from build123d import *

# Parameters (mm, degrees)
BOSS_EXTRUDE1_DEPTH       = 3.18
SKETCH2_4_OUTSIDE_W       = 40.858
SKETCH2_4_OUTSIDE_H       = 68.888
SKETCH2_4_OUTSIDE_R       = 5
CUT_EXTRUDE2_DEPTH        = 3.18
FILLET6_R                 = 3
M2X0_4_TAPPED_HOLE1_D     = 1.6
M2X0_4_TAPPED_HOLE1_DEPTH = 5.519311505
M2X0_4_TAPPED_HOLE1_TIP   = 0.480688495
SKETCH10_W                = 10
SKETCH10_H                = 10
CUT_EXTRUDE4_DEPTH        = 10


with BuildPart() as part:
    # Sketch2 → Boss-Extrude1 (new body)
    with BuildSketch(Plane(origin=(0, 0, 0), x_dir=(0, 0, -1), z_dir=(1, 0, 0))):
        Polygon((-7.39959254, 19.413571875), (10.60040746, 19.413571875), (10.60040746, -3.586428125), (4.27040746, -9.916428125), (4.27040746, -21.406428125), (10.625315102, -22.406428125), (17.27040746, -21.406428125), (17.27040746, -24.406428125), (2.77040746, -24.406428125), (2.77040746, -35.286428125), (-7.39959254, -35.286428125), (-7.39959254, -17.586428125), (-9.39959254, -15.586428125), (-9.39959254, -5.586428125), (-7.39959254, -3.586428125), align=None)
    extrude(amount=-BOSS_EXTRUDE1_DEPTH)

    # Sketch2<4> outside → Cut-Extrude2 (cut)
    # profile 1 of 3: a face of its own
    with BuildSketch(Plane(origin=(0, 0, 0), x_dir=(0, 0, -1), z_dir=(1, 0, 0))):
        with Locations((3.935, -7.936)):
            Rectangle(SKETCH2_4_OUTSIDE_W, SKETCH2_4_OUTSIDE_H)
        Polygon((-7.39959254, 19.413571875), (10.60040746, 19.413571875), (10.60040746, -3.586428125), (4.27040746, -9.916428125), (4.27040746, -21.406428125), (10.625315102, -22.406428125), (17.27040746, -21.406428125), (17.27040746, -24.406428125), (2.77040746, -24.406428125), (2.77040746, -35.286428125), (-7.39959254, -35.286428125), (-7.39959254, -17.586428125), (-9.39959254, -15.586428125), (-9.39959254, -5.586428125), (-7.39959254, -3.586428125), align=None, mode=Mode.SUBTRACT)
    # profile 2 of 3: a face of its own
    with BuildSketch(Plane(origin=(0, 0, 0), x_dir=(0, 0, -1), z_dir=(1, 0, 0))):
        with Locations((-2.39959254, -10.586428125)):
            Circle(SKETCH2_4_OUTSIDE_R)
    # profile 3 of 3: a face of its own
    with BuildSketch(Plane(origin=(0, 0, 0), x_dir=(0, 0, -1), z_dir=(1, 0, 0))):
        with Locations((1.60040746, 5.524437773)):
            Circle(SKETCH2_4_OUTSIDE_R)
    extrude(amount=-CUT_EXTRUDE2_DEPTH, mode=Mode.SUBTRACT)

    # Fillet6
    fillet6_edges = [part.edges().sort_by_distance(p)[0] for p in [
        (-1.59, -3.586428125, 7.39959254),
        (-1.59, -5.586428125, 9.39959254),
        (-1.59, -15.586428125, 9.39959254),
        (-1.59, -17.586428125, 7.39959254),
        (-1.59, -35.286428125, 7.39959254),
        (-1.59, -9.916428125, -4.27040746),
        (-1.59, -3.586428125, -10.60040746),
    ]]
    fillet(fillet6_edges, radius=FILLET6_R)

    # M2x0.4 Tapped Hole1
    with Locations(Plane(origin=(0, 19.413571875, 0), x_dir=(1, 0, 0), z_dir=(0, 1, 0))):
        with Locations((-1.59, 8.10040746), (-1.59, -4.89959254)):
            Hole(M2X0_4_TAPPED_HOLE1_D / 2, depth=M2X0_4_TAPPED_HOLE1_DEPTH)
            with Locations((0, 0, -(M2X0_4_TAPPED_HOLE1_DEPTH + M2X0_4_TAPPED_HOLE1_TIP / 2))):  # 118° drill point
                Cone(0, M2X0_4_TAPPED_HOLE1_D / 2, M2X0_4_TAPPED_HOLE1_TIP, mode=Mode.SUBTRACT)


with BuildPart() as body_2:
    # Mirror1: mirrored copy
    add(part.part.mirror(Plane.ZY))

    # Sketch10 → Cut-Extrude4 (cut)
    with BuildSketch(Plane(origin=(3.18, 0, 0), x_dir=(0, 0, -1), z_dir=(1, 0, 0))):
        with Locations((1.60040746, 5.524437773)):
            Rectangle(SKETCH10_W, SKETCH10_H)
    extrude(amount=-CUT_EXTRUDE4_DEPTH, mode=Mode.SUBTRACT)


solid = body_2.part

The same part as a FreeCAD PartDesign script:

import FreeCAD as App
import Part
import Sketcher


def edges_at(feature, points):
    """Names of the edges that pass closest to the given points."""
    edges = feature.Shape.Edges
    near = lambda p: min(range(len(edges)), key=lambda i: edges[i].distToShape(Part.Vertex(*p))[0])
    return sorted({f"Edge{near(p) + 1}" for p in points})


def add_polygon(sketch, points):
    """Adds a closed chain of lines whose ends are joined by coincident constraints."""
    first, n = sketch.GeometryCount, len(points)
    for a, b in zip(points, points[1:] + points[:1]):
        sketch.addGeometry(Part.LineSegment(App.Vector(*a, 0), App.Vector(*b, 0)), False)
    for i in range(n):
        sketch.addConstraint(Sketcher.Constraint("Coincident", first + i, 2, first + (i + 1) % n, 1))

doc = App.newDocument("Part")
body = doc.addObject("PartDesign::Body", "Body")

# Sketch on YZ plane
sketch1 = doc.addObject("Sketcher::SketchObject", "Sketch")
body.addObject(sketch1)
sketch1.AttachmentSupport = (doc.YZ_Plane, [""])
sketch1.MapMode = "FlatFace"
add_polygon(sketch1, [(19.4, -10.6), (19.4, 7.4), (-3.6, 7.4), (-5.6, 9.4), (-15.6, 9.4), (-17.6, 7.4), (-35.3, 7.4), (-35.3, -2.8), (-24.4, -2.8), (-24.4, -17.3), (-21.4, -17.3), (-22.4, -10.6), (-21.4, -4.3), (-9.9, -4.3), (-3.6, -10.6)])  # lines 0-14
sketch1.addConstraint(Sketcher.Constraint("Vertical", 0))
sketch1.addConstraint(Sketcher.Constraint("Horizontal", 1))
sketch1.addConstraint(Sketcher.Constraint("Horizontal", 3))
sketch1.addConstraint(Sketcher.Constraint("Horizontal", 5))
sketch1.addConstraint(Sketcher.Constraint("Vertical", 6))
sketch1.addConstraint(Sketcher.Constraint("Horizontal", 7))
sketch1.addConstraint(Sketcher.Constraint("Vertical", 8))
sketch1.addConstraint(Sketcher.Constraint("Horizontal", 9))
sketch1.addConstraint(Sketcher.Constraint("Horizontal", 12))
sketch1.addConstraint(Sketcher.Constraint("Horizontal", 14))
sketch1.addConstraint(Sketcher.Constraint("Perpendicular", 2, 4))
sketch1.addConstraint(Sketcher.Constraint("Perpendicular", 4, 13))
sketch1.addConstraint(Sketcher.Constraint("Horizontal", 1, 2, 4, 2))
sketch1.addConstraint(Sketcher.Constraint("Vertical", 9, 2, 11, 2))
sketch1.addConstraint(Sketcher.Constraint("Vertical", 1, 2, 13, 2))
sketch1.addConstraint(Sketcher.Constraint("Equal", 2, 4))
sketch1.addConstraint(Sketcher.Constraint("DistanceX", 1, 2, 1, 1, 23.0))
sketch1.addConstraint(Sketcher.Constraint("DistanceX", 3, 2, 3, 1, 10.0))
sketch1.addConstraint(Sketcher.Constraint("DistanceX", 9, 1, 9, 2, 3.0))
sketch1.addConstraint(Sketcher.Constraint("DistanceY", 0, 1, 0, 2, 18.0))
sketch1.addConstraint(Sketcher.Constraint("DistanceX", 5, 2, 5, 1, 17.7))
sketch1.addConstraint(Sketcher.Constraint("DistanceY", 8, 2, 8, 1, 14.5))
sketch1.addConstraint(Sketcher.Constraint("DistanceX", 2, 2, 1, 2, 2.0))
sketch1.addConstraint(Sketcher.Constraint("DistanceX", 10, 2, 9, 2, 1.0))
sketch1.addConstraint(Sketcher.Constraint("DistanceY", 9, 2, 11, 2, 13.0))
sketch1.addConstraint(Sketcher.Constraint("DistanceX", 7, 1, 7, 2, 10.88))
sketch1.addConstraint(Sketcher.Constraint("DistanceX", 12, 1, 12, 2, 11.49))
sketch1.addConstraint(Sketcher.Constraint("DistanceX", -1, 1, 0, 2, 19.413572))
sketch1.addConstraint(Sketcher.Constraint("Distance", 10, 6.719915))
sketch1.addConstraint(Sketcher.Constraint("DistanceY", -1, 1, 0, 2, 7.399593))
pad1 = doc.addObject("PartDesign::Pad", "Pad")
body.addObject(pad1)
pad1.Profile = sketch1
pad1.Length = 3.18
pad1.Reversed = True

# Sketch on YZ plane
sketch2 = doc.addObject("Sketcher::SketchObject", "Sketch001")
body.addObject(sketch2)
sketch2.AttachmentSupport = (doc.YZ_Plane, [""])
sketch2.MapMode = "FlatFace"
add_polygon(sketch2, [(26.5, 16.5), (-42.4, 16.5), (-42.4, -24.4), (26.5, -24.4)])  # lines 0-3
add_polygon(sketch2, [(-3.6, 7.4), (19.4, 7.4), (19.4, -10.6), (-3.6, -10.6), (-9.9, -4.3), (-21.4, -4.3), (-22.4, -10.6), (-21.4, -17.3), (-24.4, -17.3), (-24.4, -2.8), (-35.3, -2.8), (-35.3, 7.4), (-17.6, 7.4), (-15.6, 9.4), (-5.6, 9.4)])  # lines 4-18
sketch2.addGeometry(Part.Circle(App.Vector(-10.6, 2.4, 0), App.Vector(0, 0, 1), 5), False)  # 19
sketch2.addGeometry(Part.Circle(App.Vector(5.5, -1.6, 0), App.Vector(0, 0, 1), 5), False)  # 20
sketch2.addConstraint(Sketcher.Constraint("Horizontal", 0))
sketch2.addConstraint(Sketcher.Constraint("Vertical", 1))
sketch2.addConstraint(Sketcher.Constraint("Horizontal", 2))
sketch2.addConstraint(Sketcher.Constraint("Vertical", 3))
sketch2.addConstraint(Sketcher.Constraint("Horizontal", 4))
sketch2.addConstraint(Sketcher.Constraint("Vertical", 5))
sketch2.addConstraint(Sketcher.Constraint("Horizontal", 6))
sketch2.addConstraint(Sketcher.Constraint("Horizontal", 8))
sketch2.addConstraint(Sketcher.Constraint("Horizontal", 11))
sketch2.addConstraint(Sketcher.Constraint("Vertical", 12))
sketch2.addConstraint(Sketcher.Constraint("Horizontal", 13))
sketch2.addConstraint(Sketcher.Constraint("Vertical", 14))
sketch2.addConstraint(Sketcher.Constraint("Horizontal", 15))
sketch2.addConstraint(Sketcher.Constraint("Horizontal", 17))
sketch2.addConstraint(Sketcher.Constraint("Equal", 19, 20))
sketch2.addConstraint(Sketcher.Constraint("Perpendicular", 7, 16))
sketch2.addConstraint(Sketcher.Constraint("Perpendicular", 16, 18))
sketch2.addConstraint(Sketcher.Constraint("Horizontal", 4, 2, 14, 2))
sketch2.addConstraint(Sketcher.Constraint("Vertical", 8, 2, 10, 2))
sketch2.addConstraint(Sketcher.Constraint("Vertical", 6, 2, 18, 2))
sketch2.addConstraint(Sketcher.Constraint("Equal", 16, 18))
sketch2.addConstraint(Sketcher.Constraint("Diameter", 19, 10.0))
sketch2.addConstraint(Sketcher.Constraint("DistanceX", 4, 1, 4, 2, 23.0))
sketch2.addConstraint(Sketcher.Constraint("DistanceX", 11, 2, 11, 1, 3.0))
sketch2.addConstraint(Sketcher.Constraint("DistanceX", 17, 1, 17, 2, 10.0))
sketch2.addConstraint(Sketcher.Constraint("DistanceY", 5, 2, 5, 1, 18.0))
sketch2.addConstraint(Sketcher.Constraint("DistanceX", 15, 1, 15, 2, 17.7))
sketch2.addConstraint(Sketcher.Constraint("DistanceY", 12, 1, 12, 2, 14.5))
sketch2.addConstraint(Sketcher.Constraint("DistanceY", 20, 3, 19, 3, 4.0))
sketch2.addConstraint(Sketcher.Constraint("DistanceY", 20, 3, 4, 2, 9.0))
sketch2.addConstraint(Sketcher.Constraint("DistanceX", 19, 3, 4, 2, 30.0))
sketch2.addConstraint(Sketcher.Constraint("DistanceX", 9, 2, 8, 2, 1.0))
sketch2.addConstraint(Sketcher.Constraint("DistanceY", 10, 2, 8, 2, 13.0))
sketch2.addConstraint(Sketcher.Constraint("DistanceX", 15, 2, 19, 3, 7.0))
sketch2.addConstraint(Sketcher.Constraint("DistanceX", 8, 2, 8, 1, 11.49))
sketch2.addConstraint(Sketcher.Constraint("DistanceX", 13, 2, 13, 1, 10.88))
sketch2.addConstraint(Sketcher.Constraint("DistanceX", 0, 2, 0, 1, 68.888))
sketch2.addConstraint(Sketcher.Constraint("DistanceY", 1, 2, 1, 1, 40.858))
sketch2.addConstraint(Sketcher.Constraint("DistanceX", 0, 2, -1, 1, 42.38))
sketch2.addConstraint(Sketcher.Constraint("DistanceY", -1, 1, 0, 2, 16.494))
sketch2.addConstraint(Sketcher.Constraint("DistanceX", 19, 3, -1, 1, 10.586428))
sketch2.addConstraint(Sketcher.Constraint("Distance", 9, 6.433106))
sketch2.addConstraint(Sketcher.Constraint("DistanceY", -1, 1, 19, 3, 2.399593))
sketch2.addConstraint(Sketcher.Constraint("DistanceX", -1, 1, 20, 3, 5.524438))
pocket1 = doc.addObject("PartDesign::Pocket", "Pocket")
body.addObject(pocket1)
pocket1.Profile = sketch2
pocket1.Length = 3.18
doc.recompute()

fillet = doc.addObject("PartDesign::Fillet", "Fillet")
body.addObject(fillet)
fillet.Base = (pocket1, edges_at(pocket1, [
    (-1.59, -3.586, 7.4),
    (-1.59, -5.586, 9.4),
    (-1.59, -15.586, 9.4),
    (-1.59, -17.586, 7.4),
    (-1.59, -35.286, 7.4),
    (-1.59, -9.916, -4.27),
    (-1.59, -3.586, -10.6),
]))
fillet.Radius = 3

# Sketch on XZ plane
sketch3 = doc.addObject("Sketcher::SketchObject", "Sketch002")
body.addObject(sketch3)
sketch3.AttachmentSupport = (doc.XZ_Plane, [""])
sketch3.MapMode = "FlatFace"
sketch3.AttachmentOffset = App.Placement(App.Vector(0, 0, -19.413572), App.Rotation())
sketch3.addGeometry(Part.Circle(App.Vector(-1.6, -8.1, 0), App.Vector(0, 0, 1), 0.8), False)
sketch3.addGeometry(Part.Circle(App.Vector(-1.6, 4.9, 0), App.Vector(0, 0, 1), 0.8), False)
sketch3.addConstraint(Sketcher.Constraint("Equal", 0, 1))
sketch3.addConstraint(Sketcher.Constraint("Vertical", 0, 3, 1, 3))
sketch3.addConstraint(Sketcher.Constraint("Diameter", 0, 1.6))
sketch3.addConstraint(Sketcher.Constraint("DistanceY", 0, 3, 1, 3, 13.0))
sketch3.addConstraint(Sketcher.Constraint("DistanceX", 0, 3, -1, 1, 1.59))
sketch3.addConstraint(Sketcher.Constraint("DistanceY", 0, 3, -1, 1, 8.100407))
doc.recompute()
hole = doc.addObject("PartDesign::Hole", "Hole")
body.addObject(hole)
hole.Profile = sketch3
hole.ThreadType = "None"
hole.Diameter = 1.6
hole.DepthType = "Dimension"
hole.Depth = 5.519312
hole.DrillPoint = "Angled"
hole.DrillPointAngle = 118
hole.Reversed = True
body2 = doc.addObject("PartDesign::Body", "Body001")
doc.recompute()

mirroring = doc.addObject("Part::Mirroring", "Mirroring")
mirroring.Source = body
mirroring.Base = App.Vector(0, 0, 0)
mirroring.Normal = App.Vector(-1, 0, 0)
body2.BaseFeature = mirroring
doc.recompute()

# Sketch on YZ plane
sketch4 = doc.addObject("Sketcher::SketchObject", "Sketch003")
body2.addObject(sketch4)
sketch4.AttachmentSupport = (doc.getObject("YZ_Plane001"), [""])
sketch4.MapMode = "FlatFace"
sketch4.AttachmentOffset = App.Placement(App.Vector(0, 0, 3.18), App.Rotation())
add_polygon(sketch4, [(11, 3), (1, 3), (1, -7), (11, -7)])  # lines 0-3
sketch4.addConstraint(Sketcher.Constraint("Horizontal", 0))
sketch4.addConstraint(Sketcher.Constraint("Vertical", 1))
sketch4.addConstraint(Sketcher.Constraint("Horizontal", 2))
sketch4.addConstraint(Sketcher.Constraint("Vertical", 3))
sketch4.addConstraint(Sketcher.Constraint("Equal", 2, 1))
sketch4.addConstraint(Sketcher.Constraint("DistanceX", 0, 2, 0, 1, 10.0))
sketch4.addConstraint(Sketcher.Constraint("DistanceX", -1, 1, 0, 2, 0.524438))
sketch4.addConstraint(Sketcher.Constraint("DistanceY", -1, 1, 0, 2, 3.399593))
pocket2 = doc.addObject("PartDesign::Pocket", "Pocket001")
body2.addObject(pocket2)
pocket2.Profile = sketch4
pocket2.Length = 10
body.Visibility = False
mirroring.Visibility = False

doc.recompute()
